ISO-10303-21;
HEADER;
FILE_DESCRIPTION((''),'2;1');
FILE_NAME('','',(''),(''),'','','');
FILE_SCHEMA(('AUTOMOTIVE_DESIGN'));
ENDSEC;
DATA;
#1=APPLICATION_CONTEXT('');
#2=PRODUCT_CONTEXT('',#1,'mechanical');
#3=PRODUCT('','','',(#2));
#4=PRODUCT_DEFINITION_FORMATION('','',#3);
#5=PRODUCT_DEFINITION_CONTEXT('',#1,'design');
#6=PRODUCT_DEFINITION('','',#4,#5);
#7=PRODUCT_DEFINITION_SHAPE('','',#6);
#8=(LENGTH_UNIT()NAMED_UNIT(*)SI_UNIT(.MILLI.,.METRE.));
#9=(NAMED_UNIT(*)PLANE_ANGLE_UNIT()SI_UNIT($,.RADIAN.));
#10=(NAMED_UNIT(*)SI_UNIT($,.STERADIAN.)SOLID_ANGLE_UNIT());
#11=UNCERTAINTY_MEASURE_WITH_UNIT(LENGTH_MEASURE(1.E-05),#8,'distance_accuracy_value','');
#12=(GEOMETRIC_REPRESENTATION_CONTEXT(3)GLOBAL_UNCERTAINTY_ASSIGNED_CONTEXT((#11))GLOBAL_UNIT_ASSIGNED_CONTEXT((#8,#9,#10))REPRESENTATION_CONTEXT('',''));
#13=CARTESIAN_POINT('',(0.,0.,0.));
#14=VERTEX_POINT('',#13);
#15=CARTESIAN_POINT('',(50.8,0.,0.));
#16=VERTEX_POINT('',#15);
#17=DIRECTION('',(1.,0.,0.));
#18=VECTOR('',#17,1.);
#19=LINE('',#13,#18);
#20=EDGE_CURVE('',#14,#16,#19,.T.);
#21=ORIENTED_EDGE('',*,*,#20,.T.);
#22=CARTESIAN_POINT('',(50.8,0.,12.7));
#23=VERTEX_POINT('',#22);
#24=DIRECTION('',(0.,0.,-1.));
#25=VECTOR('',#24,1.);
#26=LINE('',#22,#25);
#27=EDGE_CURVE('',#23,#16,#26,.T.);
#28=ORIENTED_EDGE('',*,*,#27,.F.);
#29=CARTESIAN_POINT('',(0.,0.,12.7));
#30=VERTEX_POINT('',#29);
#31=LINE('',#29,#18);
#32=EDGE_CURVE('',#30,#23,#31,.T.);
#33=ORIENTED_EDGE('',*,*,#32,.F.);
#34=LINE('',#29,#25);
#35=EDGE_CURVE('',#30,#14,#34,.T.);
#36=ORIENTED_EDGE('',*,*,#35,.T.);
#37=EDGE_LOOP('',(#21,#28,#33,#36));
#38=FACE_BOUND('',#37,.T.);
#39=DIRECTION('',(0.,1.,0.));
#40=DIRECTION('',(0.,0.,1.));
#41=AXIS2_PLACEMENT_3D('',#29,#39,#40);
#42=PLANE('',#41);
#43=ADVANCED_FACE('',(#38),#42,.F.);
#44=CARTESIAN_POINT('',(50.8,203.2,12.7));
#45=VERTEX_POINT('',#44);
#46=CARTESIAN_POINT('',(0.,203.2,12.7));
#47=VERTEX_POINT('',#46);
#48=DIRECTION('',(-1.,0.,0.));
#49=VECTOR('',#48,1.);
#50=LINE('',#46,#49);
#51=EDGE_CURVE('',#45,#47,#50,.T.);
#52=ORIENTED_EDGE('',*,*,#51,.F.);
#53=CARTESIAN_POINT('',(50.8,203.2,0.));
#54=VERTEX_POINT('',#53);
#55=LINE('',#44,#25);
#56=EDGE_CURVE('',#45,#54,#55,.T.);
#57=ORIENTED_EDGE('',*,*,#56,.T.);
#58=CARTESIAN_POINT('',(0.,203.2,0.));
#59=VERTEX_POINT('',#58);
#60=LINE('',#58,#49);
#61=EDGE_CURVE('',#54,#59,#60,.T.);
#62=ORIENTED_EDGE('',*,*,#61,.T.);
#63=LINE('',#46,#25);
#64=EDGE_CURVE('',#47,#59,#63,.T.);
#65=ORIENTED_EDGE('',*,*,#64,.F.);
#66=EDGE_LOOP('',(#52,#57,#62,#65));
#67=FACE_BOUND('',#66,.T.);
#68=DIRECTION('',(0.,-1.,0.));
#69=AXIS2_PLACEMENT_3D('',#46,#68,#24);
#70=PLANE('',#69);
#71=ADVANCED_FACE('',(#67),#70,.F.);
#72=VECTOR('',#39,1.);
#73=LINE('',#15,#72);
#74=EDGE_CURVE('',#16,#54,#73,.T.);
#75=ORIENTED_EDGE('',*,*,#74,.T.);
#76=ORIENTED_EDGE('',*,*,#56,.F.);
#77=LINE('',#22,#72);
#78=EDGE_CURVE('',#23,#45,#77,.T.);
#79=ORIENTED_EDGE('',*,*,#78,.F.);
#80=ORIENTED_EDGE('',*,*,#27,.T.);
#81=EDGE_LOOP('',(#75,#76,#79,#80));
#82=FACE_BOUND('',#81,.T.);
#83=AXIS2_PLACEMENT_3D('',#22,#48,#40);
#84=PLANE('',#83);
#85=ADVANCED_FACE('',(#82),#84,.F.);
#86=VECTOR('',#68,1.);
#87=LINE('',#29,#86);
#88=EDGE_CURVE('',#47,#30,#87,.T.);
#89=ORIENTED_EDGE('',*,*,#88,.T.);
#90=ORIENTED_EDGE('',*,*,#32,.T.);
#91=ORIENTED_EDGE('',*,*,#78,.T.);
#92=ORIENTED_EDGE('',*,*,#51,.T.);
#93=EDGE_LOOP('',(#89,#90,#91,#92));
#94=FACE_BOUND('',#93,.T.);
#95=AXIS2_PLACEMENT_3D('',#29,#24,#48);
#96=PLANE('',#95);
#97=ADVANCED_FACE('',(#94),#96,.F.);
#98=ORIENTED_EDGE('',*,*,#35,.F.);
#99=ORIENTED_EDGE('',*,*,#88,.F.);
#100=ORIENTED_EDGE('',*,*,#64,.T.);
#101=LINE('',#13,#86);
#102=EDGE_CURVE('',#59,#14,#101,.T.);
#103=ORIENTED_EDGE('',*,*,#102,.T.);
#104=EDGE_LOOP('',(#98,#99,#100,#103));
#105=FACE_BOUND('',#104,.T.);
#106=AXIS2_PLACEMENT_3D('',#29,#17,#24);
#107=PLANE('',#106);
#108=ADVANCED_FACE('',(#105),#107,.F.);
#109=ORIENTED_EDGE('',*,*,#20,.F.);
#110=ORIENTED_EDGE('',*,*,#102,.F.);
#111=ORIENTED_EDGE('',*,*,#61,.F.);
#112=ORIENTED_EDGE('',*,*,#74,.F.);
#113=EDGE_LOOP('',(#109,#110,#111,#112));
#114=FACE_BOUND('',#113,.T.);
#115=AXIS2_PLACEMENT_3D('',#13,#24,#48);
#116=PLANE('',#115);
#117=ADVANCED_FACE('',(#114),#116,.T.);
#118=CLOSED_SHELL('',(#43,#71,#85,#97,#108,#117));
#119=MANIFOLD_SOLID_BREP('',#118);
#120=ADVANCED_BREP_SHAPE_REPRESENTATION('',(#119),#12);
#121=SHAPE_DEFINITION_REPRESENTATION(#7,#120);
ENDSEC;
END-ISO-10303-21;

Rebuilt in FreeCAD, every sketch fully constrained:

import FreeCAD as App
import Part
import Sketcher

V = App.Vector
Q = App.Units.Quantity

doc = App.newDocument("Part")
body = doc.addObject("PartDesign::Body", "Body")

# Sketch on XY plane
sketch1 = body.newObject("Sketcher::SketchObject", "Sketch")
sketch1.AttachmentSupport = (doc.getObject("XY_Plane"), [""])
sketch1.MapMode = "FlatFace"
sketch1.addGeometry(Part.LineSegment(V(0, 203, 0), V(0, 0, 0)), False)
sketch1.addGeometry(Part.LineSegment(V(0, 0, 0), V(51, 0, 0)), False)
sketch1.addGeometry(Part.LineSegment(V(51, 0, 0), V(51, 203, 0)), False)
sketch1.addGeometry(Part.LineSegment(V(51, 203, 0), V(0, 203, 0)), False)
sketch1.addConstraint(Sketcher.Constraint("Coincident", 0, 2, 1, 1))
sketch1.addConstraint(Sketcher.Constraint("Coincident", 1, 2, 2, 1))
sketch1.addConstraint(Sketcher.Constraint("Coincident", 2, 2, 3, 1))
sketch1.addConstraint(Sketcher.Constraint("Coincident", 3, 2, 0, 1))
sketch1.addConstraint(Sketcher.Constraint("Vertical", 0))
sketch1.addConstraint(Sketcher.Constraint("Horizontal", 1))
sketch1.addConstraint(Sketcher.Constraint("Vertical", 2))
sketch1.addConstraint(Sketcher.Constraint("Horizontal", 3))
sketch1.addConstraint(Sketcher.Constraint("Coincident", 0, 2, -1, 1))
sketch1.addConstraint(Sketcher.Constraint("DistanceX", 1, 1, 1, 2, Q("2 in")))
sketch1.addConstraint(Sketcher.Constraint("DistanceY", 0, 2, 0, 1, Q("8 in")))
pad1 = body.newObject("PartDesign::Pad", "Pad")
pad1.Profile = sketch1
pad1.Length = Q("0.5 in")

doc.recompute()
